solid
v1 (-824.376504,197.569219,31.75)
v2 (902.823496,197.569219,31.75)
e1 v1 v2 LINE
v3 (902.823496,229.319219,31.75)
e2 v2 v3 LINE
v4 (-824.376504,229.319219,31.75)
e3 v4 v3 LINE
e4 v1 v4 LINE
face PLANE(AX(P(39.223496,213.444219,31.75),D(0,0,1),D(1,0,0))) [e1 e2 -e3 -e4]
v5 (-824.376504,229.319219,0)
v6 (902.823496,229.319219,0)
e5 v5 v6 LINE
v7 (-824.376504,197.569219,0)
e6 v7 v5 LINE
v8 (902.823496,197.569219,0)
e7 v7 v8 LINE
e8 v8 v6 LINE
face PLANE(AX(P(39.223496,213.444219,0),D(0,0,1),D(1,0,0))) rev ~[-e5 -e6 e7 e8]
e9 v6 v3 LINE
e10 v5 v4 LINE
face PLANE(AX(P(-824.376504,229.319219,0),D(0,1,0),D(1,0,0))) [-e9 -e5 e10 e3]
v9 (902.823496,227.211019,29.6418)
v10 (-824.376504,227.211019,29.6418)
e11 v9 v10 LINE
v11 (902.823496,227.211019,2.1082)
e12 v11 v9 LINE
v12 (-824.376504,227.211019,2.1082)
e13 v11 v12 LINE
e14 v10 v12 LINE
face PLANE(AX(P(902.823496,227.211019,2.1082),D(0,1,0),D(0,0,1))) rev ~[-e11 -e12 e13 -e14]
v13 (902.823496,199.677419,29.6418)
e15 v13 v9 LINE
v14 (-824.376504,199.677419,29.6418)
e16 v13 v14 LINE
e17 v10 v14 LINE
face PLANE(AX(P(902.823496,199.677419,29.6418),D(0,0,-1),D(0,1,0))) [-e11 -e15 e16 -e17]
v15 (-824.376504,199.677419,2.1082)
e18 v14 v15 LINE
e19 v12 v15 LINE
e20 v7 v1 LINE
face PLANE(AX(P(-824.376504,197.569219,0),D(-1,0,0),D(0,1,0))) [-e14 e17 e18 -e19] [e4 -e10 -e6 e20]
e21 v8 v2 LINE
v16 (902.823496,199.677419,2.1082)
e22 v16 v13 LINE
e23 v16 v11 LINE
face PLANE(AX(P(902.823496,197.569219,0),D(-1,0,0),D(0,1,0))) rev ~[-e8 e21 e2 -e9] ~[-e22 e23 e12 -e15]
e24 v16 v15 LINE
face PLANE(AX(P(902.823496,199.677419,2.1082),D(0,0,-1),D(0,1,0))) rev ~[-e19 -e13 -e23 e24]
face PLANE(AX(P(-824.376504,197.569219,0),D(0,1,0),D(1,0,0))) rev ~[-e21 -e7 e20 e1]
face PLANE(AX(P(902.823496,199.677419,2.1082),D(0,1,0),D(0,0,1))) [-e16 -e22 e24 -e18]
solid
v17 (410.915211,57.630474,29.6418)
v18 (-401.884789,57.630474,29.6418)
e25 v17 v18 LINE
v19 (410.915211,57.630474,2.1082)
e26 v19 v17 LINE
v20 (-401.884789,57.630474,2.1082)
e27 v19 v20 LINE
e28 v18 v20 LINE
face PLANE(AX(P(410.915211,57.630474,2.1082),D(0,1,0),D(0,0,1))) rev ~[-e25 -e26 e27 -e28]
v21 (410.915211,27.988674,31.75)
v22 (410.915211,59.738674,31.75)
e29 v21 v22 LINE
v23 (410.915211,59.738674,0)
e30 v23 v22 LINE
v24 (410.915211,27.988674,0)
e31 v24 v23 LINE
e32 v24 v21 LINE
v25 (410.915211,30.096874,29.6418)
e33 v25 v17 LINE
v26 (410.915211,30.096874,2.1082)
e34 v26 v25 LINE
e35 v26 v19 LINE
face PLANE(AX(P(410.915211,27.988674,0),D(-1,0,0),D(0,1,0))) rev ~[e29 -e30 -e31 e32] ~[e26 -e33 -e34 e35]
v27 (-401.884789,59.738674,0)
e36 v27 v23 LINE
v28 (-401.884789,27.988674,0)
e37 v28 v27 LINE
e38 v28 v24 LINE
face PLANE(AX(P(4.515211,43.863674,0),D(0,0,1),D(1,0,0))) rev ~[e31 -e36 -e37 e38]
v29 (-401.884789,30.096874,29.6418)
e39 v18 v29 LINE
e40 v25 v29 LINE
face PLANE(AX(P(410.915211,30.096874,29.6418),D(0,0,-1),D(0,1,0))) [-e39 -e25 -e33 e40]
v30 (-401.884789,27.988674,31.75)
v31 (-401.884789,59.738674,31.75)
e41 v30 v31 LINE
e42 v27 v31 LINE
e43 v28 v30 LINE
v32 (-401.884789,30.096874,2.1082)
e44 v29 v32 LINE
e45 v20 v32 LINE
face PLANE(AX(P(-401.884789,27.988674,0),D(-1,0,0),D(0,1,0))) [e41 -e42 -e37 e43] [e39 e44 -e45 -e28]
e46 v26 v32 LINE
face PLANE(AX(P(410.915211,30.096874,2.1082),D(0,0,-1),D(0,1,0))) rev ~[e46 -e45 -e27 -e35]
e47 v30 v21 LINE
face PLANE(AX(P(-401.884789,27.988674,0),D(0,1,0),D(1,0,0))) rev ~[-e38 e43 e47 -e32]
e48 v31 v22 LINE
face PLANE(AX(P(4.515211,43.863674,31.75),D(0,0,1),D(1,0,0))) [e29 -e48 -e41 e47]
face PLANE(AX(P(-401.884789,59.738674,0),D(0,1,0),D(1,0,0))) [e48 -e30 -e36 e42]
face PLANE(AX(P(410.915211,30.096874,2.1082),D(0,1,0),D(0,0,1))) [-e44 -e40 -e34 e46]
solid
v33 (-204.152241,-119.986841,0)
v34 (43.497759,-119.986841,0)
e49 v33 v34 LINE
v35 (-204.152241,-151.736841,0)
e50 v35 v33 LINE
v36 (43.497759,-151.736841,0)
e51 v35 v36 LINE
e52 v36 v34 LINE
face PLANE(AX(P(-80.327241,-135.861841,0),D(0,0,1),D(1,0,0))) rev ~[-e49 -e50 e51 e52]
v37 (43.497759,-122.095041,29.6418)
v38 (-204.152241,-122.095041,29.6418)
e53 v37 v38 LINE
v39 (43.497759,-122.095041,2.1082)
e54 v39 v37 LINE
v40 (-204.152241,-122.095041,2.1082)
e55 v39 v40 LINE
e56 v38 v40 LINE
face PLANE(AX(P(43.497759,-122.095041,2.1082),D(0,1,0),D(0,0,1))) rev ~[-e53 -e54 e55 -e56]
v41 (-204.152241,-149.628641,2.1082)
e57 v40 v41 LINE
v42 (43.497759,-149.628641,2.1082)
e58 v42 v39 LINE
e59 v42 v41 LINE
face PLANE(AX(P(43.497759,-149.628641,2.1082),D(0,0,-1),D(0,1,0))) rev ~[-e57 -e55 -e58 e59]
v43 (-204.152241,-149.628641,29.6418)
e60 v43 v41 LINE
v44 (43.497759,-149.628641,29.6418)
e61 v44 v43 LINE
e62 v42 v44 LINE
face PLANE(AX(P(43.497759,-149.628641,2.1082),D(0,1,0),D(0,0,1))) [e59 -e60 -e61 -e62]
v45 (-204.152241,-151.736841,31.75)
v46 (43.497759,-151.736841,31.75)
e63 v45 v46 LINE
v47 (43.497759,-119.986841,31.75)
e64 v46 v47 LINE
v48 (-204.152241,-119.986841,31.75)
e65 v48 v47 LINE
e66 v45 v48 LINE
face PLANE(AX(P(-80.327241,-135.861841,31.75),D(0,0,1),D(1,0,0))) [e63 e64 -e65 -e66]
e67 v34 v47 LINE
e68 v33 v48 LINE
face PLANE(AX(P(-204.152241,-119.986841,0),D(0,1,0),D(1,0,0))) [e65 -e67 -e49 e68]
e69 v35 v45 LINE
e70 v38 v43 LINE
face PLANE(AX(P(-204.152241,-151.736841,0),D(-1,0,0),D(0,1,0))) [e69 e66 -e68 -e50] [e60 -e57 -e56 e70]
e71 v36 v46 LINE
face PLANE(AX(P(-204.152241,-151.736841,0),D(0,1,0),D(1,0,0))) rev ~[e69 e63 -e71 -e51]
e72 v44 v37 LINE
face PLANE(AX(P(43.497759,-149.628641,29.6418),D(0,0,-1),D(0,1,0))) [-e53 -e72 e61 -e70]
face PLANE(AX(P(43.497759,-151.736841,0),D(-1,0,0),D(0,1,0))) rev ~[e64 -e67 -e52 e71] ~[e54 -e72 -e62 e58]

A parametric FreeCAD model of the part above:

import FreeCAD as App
import Part
import Sketcher
from FreeCAD import Vector
Q = App.Units.Quantity


def add_polygon(sketch, points):
    """Adds a closed chain of lines whose ends are joined by coincident constraints."""
    first, n = sketch.GeometryCount, len(points)
    for a, b in zip(points, points[1:] + points[:1]):
        sketch.addGeometry(Part.LineSegment(App.Vector(*a, 0), App.Vector(*b, 0)), False)
    for i in range(n):
        sketch.addConstraint(Sketcher.Constraint("Coincident", first + i, 2, first + (i + 1) % n, 1))

doc = App.newDocument("Part")
body = doc.addObject("PartDesign::Body", "Body")

# Sketch on XY plane
sketch1 = doc.addObject("Sketcher::SketchObject", "Sketch")
body.addObject(sketch1)
sketch1.AttachmentSupport = (doc.XY_Plane, [""])
sketch1.MapMode = "FlatFace"
add_polygon(sketch1, [(-402, 60), (-402, 28), (411, 28), (411, 60)])  # lines 0-3
sketch1.addConstraint([
    Sketcher.Constraint("Vertical", 0),
    Sketcher.Constraint("Horizontal", 1),
    Sketcher.Constraint("Vertical", 2),
    Sketcher.Constraint("Horizontal", 3),
    Sketcher.Constraint("DistanceX", 1, 1, 1, 2, Q("32 in")),
    Sketcher.Constraint("DistanceY", 0, 2, 0, 1, Q("1.25 in")),
    Sketcher.Constraint("DistanceX", 0, 2, -1, 1, Q("401.884789 mm")),
    Sketcher.Constraint("DistanceY", -1, 1, 0, 2, Q("27.988674 mm")),
])
pad1 = doc.addObject("PartDesign::Pad", "Pad")
body.addObject(pad1)
pad1.Profile = sketch1
pad1.Length = Q("1.25 in")

# Sketch on YZ plane
sketch2 = doc.addObject("Sketcher::SketchObject", "Sketch001")
body.addObject(sketch2)
sketch2.AttachmentSupport = (doc.YZ_Plane, [""])
sketch2.MapMode = "FlatFace"
sketch2.AttachmentOffset = App.Placement(Vector(0, 0, 410.915211), App.Rotation())
add_polygon(sketch2, [(30, 30), (30, 2), (58, 2), (58, 30)])  # lines 0-3
sketch2.addConstraint([
    Sketcher.Constraint("Vertical", 0),
    Sketcher.Constraint("Horizontal", 1),
    Sketcher.Constraint("Vertical", 2),
    Sketcher.Constraint("Horizontal", 3),
    Sketcher.Constraint("Equal", 3, 0),
    Sketcher.Constraint("DistanceX", 1, 1, 1, 2, Q("1.084 in")),
    Sketcher.Constraint("DistanceY", -1, 1, 0, 2, Q("0.083 in")),
    Sketcher.Constraint("DistanceX", -1, 1, 0, 2, Q("30.096874 mm")),
])
pocket1 = doc.addObject("PartDesign::Pocket", "Pocket")
body.addObject(pocket1)
pocket1.Profile = sketch2
pocket1.Length = Q("33.68 in")
body2 = doc.addObject("PartDesign::Body", "Body001")

# Sketch on XY plane
sketch3 = doc.addObject("Sketcher::SketchObject", "Sketch002")
body2.addObject(sketch3)
sketch3.AttachmentSupport = (doc.getObject("XY_Plane001"), [""])
sketch3.MapMode = "FlatFace"
add_polygon(sketch3, [(-824, 229), (-824, 198), (903, 198), (903, 229)])  # lines 0-3
sketch3.addConstraint([
    Sketcher.Constraint("Vertical", 0),
    Sketcher.Constraint("Horizontal", 1),
    Sketcher.Constraint("Vertical", 2),
    Sketcher.Constraint("Horizontal", 3),
    Sketcher.Constraint("DistanceX", 1, 1, 1, 2, Q("68 in")),
    Sketcher.Constraint("DistanceY", 0, 2, 0, 1, Q("1.25 in")),
    Sketcher.Constraint("DistanceY", -1, 1, 0, 2, Q("197.569219 mm")),
    Sketcher.Constraint("DistanceX", 0, 2, -1, 1, Q("824.376504 mm")),
])
pad2 = doc.addObject("PartDesign::Pad", "Pad001")
body2.addObject(pad2)
pad2.Profile = sketch3
pad2.Length = Q("1.25 in")

# Sketch on YZ plane
sketch4 = doc.addObject("Sketcher::SketchObject", "Sketch003")
body2.addObject(sketch4)
sketch4.AttachmentSupport = (doc.getObject("YZ_Plane001"), [""])
sketch4.MapMode = "FlatFace"
sketch4.AttachmentOffset = App.Placement(Vector(0, 0, 902.823496), App.Rotation())
add_polygon(sketch4, [(200, 30), (200, 2), (227, 2), (227, 30)])  # lines 0-3
sketch4.addConstraint([
    Sketcher.Constraint("Vertical", 0),
    Sketcher.Constraint("Horizontal", 1),
    Sketcher.Constraint("Vertical", 2),
    Sketcher.Constraint("Horizontal", 3),
    Sketcher.Constraint("Equal", 3, 0),
    Sketcher.Constraint("DistanceX", 1, 1, 1, 2, Q("1.084 in")),
    Sketcher.Constraint("DistanceY", -1, 1, 0, 2, Q("0.083 in")),
    Sketcher.Constraint("DistanceX", -1, 1, 0, 2, Q("199.677419 mm")),
])
pocket2 = doc.addObject("PartDesign::Pocket", "Pocket001")
body2.addObject(pocket2)
pocket2.Profile = sketch4
pocket2.Length = Q("70.2 in")
body3 = doc.addObject("PartDesign::Body", "Body002")

# Sketch on XY plane
sketch5 = doc.addObject("Sketcher::SketchObject", "Sketch004")
body3.addObject(sketch5)
sketch5.AttachmentSupport = (doc.getObject("XY_Plane002"), [""])
sketch5.MapMode = "FlatFace"
add_polygon(sketch5, [(-204, -120), (-204, -152), (43, -152), (43, -120)])  # lines 0-3
sketch5.addConstraint([
    Sketcher.Constraint("Vertical", 0),
    Sketcher.Constraint("Horizontal", 1),
    Sketcher.Constraint("Vertical", 2),
    Sketcher.Constraint("Horizontal", 3),
    Sketcher.Constraint("DistanceX", 1, 1, 1, 2, Q("9.75 in")),
    Sketcher.Constraint("DistanceY", 0, 2, 0, 1, Q("1.25 in")),
    Sketcher.Constraint("DistanceX", 0, 2, -1, 1, Q("204.152241 mm")),
    Sketcher.Constraint("DistanceY", 0, 2, -1, 1, Q("151.736841 mm")),
])
pad3 = doc.addObject("PartDesign::Pad", "Pad002")
body3.addObject(pad3)
pad3.Profile = sketch5
pad3.Length = Q("1.25 in")

# Sketch on YZ plane
sketch6 = doc.addObject("Sketcher::SketchObject", "Sketch005")
body3.addObject(sketch6)
sketch6.AttachmentSupport = (doc.getObject("YZ_Plane002"), [""])
sketch6.MapMode = "FlatFace"
sketch6.AttachmentOffset = App.Placement(Vector(0, 0, 43.497759), App.Rotation())
add_polygon(sketch6, [(-150, 30), (-150, 2), (-122, 2), (-122, 30)])  # lines 0-3
sketch6.addConstraint([
    Sketcher.Constraint("Vertical", 0),
    Sketcher.Constraint("Horizontal", 1),
    Sketcher.Constraint("Vertical", 2),
    Sketcher.Constraint("Horizontal", 3),
    Sketcher.Constraint("Equal", 3, 0),
    Sketcher.Constraint("DistanceX", 1, 1, 1, 2, Q("1.084 in")),
    Sketcher.Constraint("DistanceY", -1, 1, 0, 2, Q("0.083 in")),
    Sketcher.Constraint("DistanceX", 0, 2, -1, 1, Q("149.628641 mm")),
])
pocket3 = doc.addObject("PartDesign::Pocket", "Pocket002")
body3.addObject(pocket3)
pocket3.Profile = sketch6
pocket3.Length = Q("10 in")

doc.recompute()
